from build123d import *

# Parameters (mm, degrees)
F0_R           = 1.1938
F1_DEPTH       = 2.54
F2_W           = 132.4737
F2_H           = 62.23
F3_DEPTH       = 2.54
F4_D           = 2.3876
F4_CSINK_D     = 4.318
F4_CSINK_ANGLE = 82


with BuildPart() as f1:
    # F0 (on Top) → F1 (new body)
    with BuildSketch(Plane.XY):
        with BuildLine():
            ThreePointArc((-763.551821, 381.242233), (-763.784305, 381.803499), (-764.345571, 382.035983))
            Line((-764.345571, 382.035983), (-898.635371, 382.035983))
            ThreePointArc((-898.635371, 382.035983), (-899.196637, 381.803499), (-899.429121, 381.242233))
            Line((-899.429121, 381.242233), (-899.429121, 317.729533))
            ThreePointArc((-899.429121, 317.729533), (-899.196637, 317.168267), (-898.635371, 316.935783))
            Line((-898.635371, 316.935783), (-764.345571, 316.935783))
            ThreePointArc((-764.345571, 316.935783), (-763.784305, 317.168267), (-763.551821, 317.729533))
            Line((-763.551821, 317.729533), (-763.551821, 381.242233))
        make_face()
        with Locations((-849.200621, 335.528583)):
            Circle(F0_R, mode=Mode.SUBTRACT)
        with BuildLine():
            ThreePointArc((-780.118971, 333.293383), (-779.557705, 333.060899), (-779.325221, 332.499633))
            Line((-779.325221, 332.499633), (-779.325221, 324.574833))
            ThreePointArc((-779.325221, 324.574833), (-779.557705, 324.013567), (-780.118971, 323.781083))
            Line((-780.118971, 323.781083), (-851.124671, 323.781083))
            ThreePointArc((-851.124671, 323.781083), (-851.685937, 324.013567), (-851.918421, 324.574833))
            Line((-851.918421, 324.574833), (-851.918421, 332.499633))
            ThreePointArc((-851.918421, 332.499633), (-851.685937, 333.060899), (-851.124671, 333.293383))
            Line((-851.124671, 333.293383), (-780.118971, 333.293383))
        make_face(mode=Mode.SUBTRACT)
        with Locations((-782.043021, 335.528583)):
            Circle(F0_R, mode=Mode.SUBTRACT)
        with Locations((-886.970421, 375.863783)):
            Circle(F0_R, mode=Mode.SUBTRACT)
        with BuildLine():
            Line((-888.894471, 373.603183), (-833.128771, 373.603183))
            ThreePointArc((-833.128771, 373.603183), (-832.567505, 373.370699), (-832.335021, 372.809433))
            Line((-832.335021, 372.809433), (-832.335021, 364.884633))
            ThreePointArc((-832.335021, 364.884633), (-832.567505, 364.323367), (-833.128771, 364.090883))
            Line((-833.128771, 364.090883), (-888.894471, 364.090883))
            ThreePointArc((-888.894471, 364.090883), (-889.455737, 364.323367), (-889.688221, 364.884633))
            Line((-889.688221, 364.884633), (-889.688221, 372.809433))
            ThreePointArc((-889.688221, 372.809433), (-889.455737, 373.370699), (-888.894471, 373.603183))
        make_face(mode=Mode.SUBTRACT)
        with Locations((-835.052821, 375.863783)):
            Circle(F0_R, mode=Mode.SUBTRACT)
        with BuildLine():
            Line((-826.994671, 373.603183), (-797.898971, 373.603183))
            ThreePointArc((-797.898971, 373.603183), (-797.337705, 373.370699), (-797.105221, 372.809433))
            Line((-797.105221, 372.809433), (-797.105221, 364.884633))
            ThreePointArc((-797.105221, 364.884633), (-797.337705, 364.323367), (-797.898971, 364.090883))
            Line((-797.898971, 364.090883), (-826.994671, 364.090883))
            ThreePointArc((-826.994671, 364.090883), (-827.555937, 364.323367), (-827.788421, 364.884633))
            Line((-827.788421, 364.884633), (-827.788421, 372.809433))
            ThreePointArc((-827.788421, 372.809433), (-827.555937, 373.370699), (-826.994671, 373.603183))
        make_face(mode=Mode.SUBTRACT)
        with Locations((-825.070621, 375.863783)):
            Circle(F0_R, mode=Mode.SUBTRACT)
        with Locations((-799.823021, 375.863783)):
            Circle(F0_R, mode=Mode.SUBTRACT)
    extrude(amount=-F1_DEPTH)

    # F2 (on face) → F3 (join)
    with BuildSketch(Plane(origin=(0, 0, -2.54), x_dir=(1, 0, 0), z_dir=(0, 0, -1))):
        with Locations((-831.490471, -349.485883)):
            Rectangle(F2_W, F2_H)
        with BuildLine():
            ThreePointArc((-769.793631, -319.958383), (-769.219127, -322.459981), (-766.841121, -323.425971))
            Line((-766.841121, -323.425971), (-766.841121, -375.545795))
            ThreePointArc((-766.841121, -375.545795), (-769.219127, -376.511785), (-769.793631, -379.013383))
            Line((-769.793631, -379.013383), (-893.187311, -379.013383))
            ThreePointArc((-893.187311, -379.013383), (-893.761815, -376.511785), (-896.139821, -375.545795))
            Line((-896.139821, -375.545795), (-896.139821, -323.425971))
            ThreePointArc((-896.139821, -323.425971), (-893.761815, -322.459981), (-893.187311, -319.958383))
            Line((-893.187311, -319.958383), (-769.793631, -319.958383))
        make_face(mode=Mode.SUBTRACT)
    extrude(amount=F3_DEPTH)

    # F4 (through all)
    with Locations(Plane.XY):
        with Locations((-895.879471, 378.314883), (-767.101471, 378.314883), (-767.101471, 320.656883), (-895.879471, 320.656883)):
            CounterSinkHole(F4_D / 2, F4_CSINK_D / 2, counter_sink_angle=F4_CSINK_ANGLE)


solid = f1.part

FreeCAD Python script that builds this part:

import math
import FreeCAD as App
import Part
import Sketcher
Q = App.Units.Quantity

doc = App.newDocument("Part")
params = doc.addObject("Spreadsheet::Sheet", "Params")
for row, (alias, value) in enumerate([
    ("sketch1_diameter", "0.094 in"),
    ("sketch1_radius", "0.03125 in"),
    ("sketch1_width", "5.287 in"),
    ("sketch1_height", "0.312 in"),
    ("pad1_length", "0.1 in"),
    ("sketch2_height", "2.45 in"),
    ("pad2_length", "0.1 in"),
    ("sketch3_diameter", "0.094 in"),
    ("hole_diameter", "0.094 in"),
    ("hole_csink_diameter", "0.17 in"),
], start=1):
    params.set(f"A{row}", alias)
    params.set(f"B{row}", "=" + value)
    params.setAlias(f"B{row}", alias)

body = doc.addObject("PartDesign::Body", "Body")

sketch1 = body.newObject("Sketcher::SketchObject", "Sketch")
sketch1.AttachmentSupport = (doc.getObject("XY_Plane"), [""])
sketch1.MapMode = "FlatFace"
sketch1.addGeometry([
    Part.ArcOfCircle(Part.Circle(App.Vector(-764.3, 381.2, 0), App.Vector(0, 0, 1), 0.8), math.radians(0), math.radians(90)),
    Part.LineSegment(App.Vector(-764.3, 382, 0), App.Vector(-898.6, 382, 0)),
    Part.ArcOfCircle(Part.Circle(App.Vector(-898.6, 381.2, 0), App.Vector(0, 0, 1), 0.8), math.radians(90), math.radians(180)),
    Part.LineSegment(App.Vector(-899.4, 381.2, 0), App.Vector(-899.4, 317.7, 0)),
    Part.ArcOfCircle(Part.Circle(App.Vector(-898.6, 317.7, 0), App.Vector(0, 0, 1), 0.8), math.radians(-180), math.radians(-90)),
    Part.LineSegment(App.Vector(-898.6, 316.9, 0), App.Vector(-764.3, 316.9, 0)),
    Part.ArcOfCircle(Part.Circle(App.Vector(-764.3, 317.7, 0), App.Vector(0, 0, 1), 0.8), math.radians(-90), math.radians(0)),
    Part.LineSegment(App.Vector(-763.6, 317.7, 0), App.Vector(-763.6, 381.2, 0)),
    Part.Circle(App.Vector(-849.2, 335.5, 0), App.Vector(0, 0, 1), 1.2),
    Part.LineSegment(App.Vector(-851.1, 333.3, 0), App.Vector(-780.1, 333.3, 0)),
    Part.ArcOfCircle(Part.Circle(App.Vector(-780.1, 332.5, 0), App.Vector(0, 0, 1), 0.8), math.radians(0), math.radians(90)),
    Part.LineSegment(App.Vector(-779.3, 332.5, 0), App.Vector(-779.3, 324.6, 0)),
    Part.ArcOfCircle(Part.Circle(App.Vector(-780.1, 324.6, 0), App.Vector(0, 0, 1), 0.8), math.radians(-90), math.radians(0)),
    Part.LineSegment(App.Vector(-780.1, 323.8, 0), App.Vector(-851.1, 323.8, 0)),
    Part.ArcOfCircle(Part.Circle(App.Vector(-851.1, 324.6, 0), App.Vector(0, 0, 1), 0.8), math.radians(-180), math.radians(-90)),
    Part.LineSegment(App.Vector(-851.9, 324.6, 0), App.Vector(-851.9, 332.5, 0)),
    Part.ArcOfCircle(Part.Circle(App.Vector(-851.1, 332.5, 0), App.Vector(0, 0, 1), 0.8), math.radians(90), math.radians(180)),
    Part.Circle(App.Vector(-782, 335.5, 0), App.Vector(0, 0, 1), 1.2),
    Part.Circle(App.Vector(-887, 375.9, 0), App.Vector(0, 0, 1), 1.2),
    Part.ArcOfCircle(Part.Circle(App.Vector(-888.9, 372.8, 0), App.Vector(0, 0, 1), 0.8), math.radians(90), math.radians(180)),
    Part.LineSegment(App.Vector(-888.9, 373.6, 0), App.Vector(-833.1, 373.6, 0)),
    Part.ArcOfCircle(Part.Circle(App.Vector(-833.1, 372.8, 0), App.Vector(0, 0, 1), 0.8), math.radians(0), math.radians(90)),
    Part.LineSegment(App.Vector(-832.3, 372.8, 0), App.Vector(-832.3, 364.9, 0)),
    Part.ArcOfCircle(Part.Circle(App.Vector(-833.1, 364.9, 0), App.Vector(0, 0, 1), 0.8), math.radians(-90), math.radians(0)),
    Part.LineSegment(App.Vector(-833.1, 364.1, 0), App.Vector(-888.9, 364.1, 0)),
    Part.ArcOfCircle(Part.Circle(App.Vector(-888.9, 364.9, 0), App.Vector(0, 0, 1), 0.8), math.radians(-180), math.radians(-90)),
    Part.LineSegment(App.Vector(-889.7, 364.9, 0), App.Vector(-889.7, 372.8, 0)),
    Part.Circle(App.Vector(-835.1, 375.9, 0), App.Vector(0, 0, 1), 1.2),
    Part.ArcOfCircle(Part.Circle(App.Vector(-827, 372.8, 0), App.Vector(0, 0, 1), 0.8), math.radians(90), math.radians(180)),
    Part.LineSegment(App.Vector(-827, 373.6, 0), App.Vector(-797.9, 373.6, 0)),
    Part.ArcOfCircle(Part.Circle(App.Vector(-797.9, 372.8, 0), App.Vector(0, 0, 1), 0.8), math.radians(0), math.radians(90)),
    Part.LineSegment(App.Vector(-797.1, 372.8, 0), App.Vector(-797.1, 364.9, 0)),
    Part.ArcOfCircle(Part.Circle(App.Vector(-797.9, 364.9, 0), App.Vector(0, 0, 1), 0.8), math.radians(-90), math.radians(0)),
    Part.LineSegment(App.Vector(-797.9, 364.1, 0), App.Vector(-827, 364.1, 0)),
    Part.ArcOfCircle(Part.Circle(App.Vector(-827, 364.9, 0), App.Vector(0, 0, 1), 0.8), math.radians(-180), math.radians(-90)),
    Part.LineSegment(App.Vector(-827.8, 364.9, 0), App.Vector(-827.8, 372.8, 0)),
    Part.Circle(App.Vector(-825.1, 375.9, 0), App.Vector(0, 0, 1), 1.2),
    Part.Circle(App.Vector(-799.8, 375.9, 0), App.Vector(0, 0, 1), 1.2),
], False)
sketch1.addConstraint([
    Sketcher.Constraint("Tangent", 0, 2, 1, 1),
    Sketcher.Constraint("Tangent", 1, 2, 2, 1),
    Sketcher.Constraint("Tangent", 2, 2, 3, 1),
    Sketcher.Constraint("Tangent", 3, 2, 4, 1),
    Sketcher.Constraint("Tangent", 4, 2, 5, 1),
    Sketcher.Constraint("Tangent", 5, 2, 6, 1),
    Sketcher.Constraint("Tangent", 6, 2, 7, 1),
    Sketcher.Constraint("Tangent", 7, 2, 0, 1),
    Sketcher.Constraint("Tangent", 9, 2, 10, 2),
    Sketcher.Constraint("Tangent", 10, 1, 11, 1),
    Sketcher.Constraint("Tangent", 11, 2, 12, 2),
    Sketcher.Constraint("Tangent", 12, 1, 13, 1),
    Sketcher.Constraint("Tangent", 13, 2, 14, 2),
    Sketcher.Constraint("Tangent", 14, 1, 15, 1),
    Sketcher.Constraint("Tangent", 15, 2, 16, 2),
    Sketcher.Constraint("Tangent", 16, 1, 9, 1),
    Sketcher.Constraint("Tangent", 19, 1, 20, 1),
    Sketcher.Constraint("Tangent", 20, 2, 21, 2),
    Sketcher.Constraint("Tangent", 21, 1, 22, 1),
    Sketcher.Constraint("Tangent", 22, 2, 23, 2),
    Sketcher.Constraint("Tangent", 23, 1, 24, 1),
    Sketcher.Constraint("Tangent", 24, 2, 25, 2),
    Sketcher.Constraint("Tangent", 25, 1, 26, 1),
    Sketcher.Constraint("Tangent", 26, 2, 19, 2),
    Sketcher.Constraint("Tangent", 28, 1, 29, 1),
    Sketcher.Constraint("Tangent", 29, 2, 30, 2),
    Sketcher.Constraint("Tangent", 30, 1, 31, 1),
    Sketcher.Constraint("Tangent", 31, 2, 32, 2),
    Sketcher.Constraint("Tangent", 32, 1, 33, 1),
    Sketcher.Constraint("Tangent", 33, 2, 34, 2),
    Sketcher.Constraint("Tangent", 34, 1, 35, 1),
    Sketcher.Constraint("Tangent", 35, 2, 28, 2),
    Sketcher.Constraint("Horizontal", 1),
    Sketcher.Constraint("Vertical", 3),
    Sketcher.Constraint("Horizontal", 5),
    Sketcher.Constraint("Vertical", 7),
    Sketcher.Constraint("Horizontal", 9),
    Sketcher.Constraint("Vertical", 11),
    Sketcher.Constraint("Horizontal", 13),
    Sketcher.Constraint("Vertical", 15),
    Sketcher.Constraint("Horizontal", 20),
    Sketcher.Constraint("Vertical", 22),
    Sketcher.Constraint("Horizontal", 24),
    Sketcher.Constraint("Vertical", 26),
    Sketcher.Constraint("Horizontal", 29),
    Sketcher.Constraint("Vertical", 31),
    Sketcher.Constraint("Horizontal", 33),
    Sketcher.Constraint("Vertical", 35),
    Sketcher.Constraint("Equal", 0, 2),
    Sketcher.Constraint("Equal", 2, 4),
    Sketcher.Constraint("Equal", 4, 6),
    Sketcher.Constraint("Equal", 6, 10),
    Sketcher.Constraint("Equal", 10, 12),
    Sketcher.Constraint("Equal", 12, 14),
    Sketcher.Constraint("Equal", 14, 16),
    Sketcher.Constraint("Equal", 8, 17),
    Sketcher.Constraint("Equal", 17, 18),
    Sketcher.Constraint("Equal", 16, 19),
    Sketcher.Constraint("Equal", 19, 21),
    Sketcher.Constraint("Equal", 21, 23),
    Sketcher.Constraint("Equal", 23, 25),
    Sketcher.Constraint("Equal", 18, 27),
    Sketcher.Constraint("Equal", 25, 28),
    Sketcher.Constraint("Equal", 28, 30),
    Sketcher.Constraint("Equal", 30, 32),
    Sketcher.Constraint("Equal", 32, 34),
    Sketcher.Constraint("Equal", 27, 36),
    Sketcher.Constraint("Equal", 36, 37),
    Sketcher.Constraint("Horizontal", 8, 3, 17, 3),
    Sketcher.Constraint("Horizontal", 18, 3, 27, 3),
    Sketcher.Constraint("Horizontal", 21, 3, 28, 3),
    Sketcher.Constraint("Horizontal", 25, 3, 32, 3),
    Sketcher.Constraint("Horizontal", 27, 3, 36, 3),
    Sketcher.Constraint("Horizontal", 36, 3, 37, 3),
    Sketcher.Constraint("Equal", 15, 22),
    Sketcher.Constraint("Diameter", 8, Q("0.094 in")),
    Sketcher.Constraint("Radius", 0, Q("0.03125 in")),
    Sketcher.Constraint("DistanceX", 1, 2, 1, 1, Q("5.287 in")),
    Sketcher.Constraint("DistanceY", 11, 2, 11, 1, Q("0.312 in")),
    Sketcher.Constraint("DistanceX", 16, 3, 28, 3, Q("0.95 in")),
    Sketcher.Constraint("DistanceX", 9, 1, 9, 2, Q("2.7955 in")),
    Sketcher.Constraint("DistanceX", 20, 1, 20, 2, Q("2.1955 in")),
    Sketcher.Constraint("DistanceX", 29, 1, 29, 2, Q("1.1455 in")),
    Sketcher.Constraint("DistanceY", 3, 2, 3, 1, Q("2.5005 in")),
    Sketcher.Constraint("DistanceX", 10, 3, 6, 3, Q("0.621 in")),
    Sketcher.Constraint("DistanceY", 10, 3, 0, 3, Q("1.919 in")),
    Sketcher.Constraint("DistanceX", 8, 3, 17, 3, Q("2.644 in")),
    Sketcher.Constraint("DistanceX", 18, 3, 8, 3, Q("1.487 in")),
    Sketcher.Constraint("DistanceY", 8, 3, 18, 3, Q("1.588 in")),
    Sketcher.Constraint("DistanceY", 19, 3, 2, 3, Q("0.332 in")),
    Sketcher.Constraint("DistanceX", 19, 3, 16, 3, Q("1.487 in")),
    Sketcher.Constraint("DistanceX", 8, 3, 27, 3, Q("0.557 in")),
    Sketcher.Constraint("DistanceX", 27, 3, 36, 3, Q("0.393 in")),
    Sketcher.Constraint("DistanceX", 36, 3, 37, 3, Q("0.994 in")),
    Sketcher.Constraint("DistanceY", 37, 3, 0, 2, Q("0.243 in")),
    Sketcher.Constraint("DistanceX", 17, 3, 6, 2, Q("0.728 in")),
    Sketcher.Constraint("DistanceX", 0, 3, -1, 1, Q("764.345571 mm")),
    Sketcher.Constraint("DistanceY", -1, 1, 0, 3, Q("381.242233 mm")),
])
sketch1.setExpression("Constraints[75]", "Params.sketch1_diameter")
sketch1.setExpression("Constraints[76]", "Params.sketch1_radius")
sketch1.setExpression("Constraints[77]", "Params.sketch1_width")
sketch1.setExpression("Constraints[78]", "Params.sketch1_height")
pad1 = body.newObject("PartDesign::Pad", "Pad")
pad1.Profile = sketch1
pad1.setExpression("Length", "Params.pad1_length")
pad1.Reversed = True

sketch2 = body.newObject("Sketcher::SketchObject", "Sketch001")
sketch2.AttachmentSupport = (doc.getObject("XY_Plane"), [""])
sketch2.MapMode = "FlatFace"
sketch2.AttachmentOffset = App.Placement(App.Vector(0, 0, -0.1 * 25.4), App.Rotation())
sketch2.addGeometry([
    Part.LineSegment(App.Vector(-897.7, 318.4, 0), App.Vector(-897.7, 380.6, 0)),
    Part.LineSegment(App.Vector(-897.7, 380.6, 0), App.Vector(-765.3, 380.6, 0)),
    Part.LineSegment(App.Vector(-765.3, 380.6, 0), App.Vector(-765.3, 318.4, 0)),
    Part.LineSegment(App.Vector(-765.3, 318.4, 0), App.Vector(-897.7, 318.4, 0)),
    Part.LineSegment(App.Vector(-893.2, 320, 0), App.Vector(-769.8, 320, 0)),
    Part.ArcOfCircle(Part.Circle(App.Vector(-767.1, 320.7, 0), App.Vector(0, 0, 1), 2.8), math.radians(85), math.radians(195)),
    Part.LineSegment(App.Vector(-766.8, 323.4, 0), App.Vector(-766.8, 375.5, 0)),
    Part.ArcOfCircle(Part.Circle(App.Vector(-767.1, 378.3, 0), App.Vector(0, 0, 1), 2.8), math.radians(165), math.radians(275)),
    Part.LineSegment(App.Vector(-769.8, 379, 0), App.Vector(-893.2, 379, 0)),
    Part.ArcOfCircle(Part.Circle(App.Vector(-895.9, 378.3, 0), App.Vector(0, 0, 1), 2.8), math.radians(-95), math.radians(15)),
    Part.LineSegment(App.Vector(-896.1, 375.5, 0), App.Vector(-896.1, 323.4, 0)),
    Part.ArcOfCircle(Part.Circle(App.Vector(-895.9, 320.7, 0), App.Vector(0, 0, 1), 2.8), math.radians(-15), math.radians(95)),
], False)
sketch2.addConstraint([
    Sketcher.Constraint("Coincident", 0, 2, 1, 1),
    Sketcher.Constraint("Coincident", 1, 2, 2, 1),
    Sketcher.Constraint("Coincident", 2, 2, 3, 1),
    Sketcher.Constraint("Coincident", 3, 2, 0, 1),
    Sketcher.Constraint("Coincident", 4, 2, 5, 2),
    Sketcher.Constraint("Coincident", 5, 1, 6, 1),
    Sketcher.Constraint("Coincident", 6, 2, 7, 2),
    Sketcher.Constraint("Coincident", 7, 1, 8, 1),
    Sketcher.Constraint("Coincident", 8, 2, 9, 2),
    Sketcher.Constraint("Coincident", 9, 1, 10, 1),
    Sketcher.Constraint("Coincident", 10, 2, 11, 2),
    Sketcher.Constraint("Coincident", 11, 1, 4, 1),
    Sketcher.Constraint("Vertical", 0),
    Sketcher.Constraint("Horizontal", 1),
    Sketcher.Constraint("Vertical", 2),
    Sketcher.Constraint("Horizontal", 3),
    Sketcher.Constraint("Horizontal", 4),
    Sketcher.Constraint("Vertical", 6),
    Sketcher.Constraint("Horizontal", 8),
    Sketcher.Constraint("Vertical", 10),
    Sketcher.Constraint("Equal", 5, 7),
    Sketcher.Constraint("Equal", 7, 9),
    Sketcher.Constraint("Equal", 9, 11),
    Sketcher.Constraint("Horizontal", 7, 3, 9, 3),
    Sketcher.Constraint("Horizontal", 5, 3, 11, 3),
    Sketcher.Constraint("Horizontal", 6, 2, 9, 1),
    Sketcher.Constraint("Horizontal", 5, 1, 10, 2),
    Sketcher.Constraint("Vertical", 5, 3, 7, 3),
    Sketcher.Constraint("Vertical", 4, 2, 7, 1),
    Sketcher.Constraint("DistanceY", 0, 1, 0, 2, Q("2.45 in")),
    Sketcher.Constraint("Radius", 5, Q("0.1095 in")),
    Sketcher.Constraint("DistanceY", 5, 3, 7, 3, Q("2.27 in")),
    Sketcher.Constraint("DistanceX", 9, 3, 7, 3, Q("5.07 in")),
    Sketcher.Constraint("DistanceY", 9, 3, 0, 2, Q("0.09 in")),
    Sketcher.Constraint("DistanceX", 1, 1, 1, 2, Q("5.2155 in")),
    Sketcher.Constraint("DistanceY", 2, 2, 4, 2, Q("0.0625 in")),
    Sketcher.Constraint("DistanceX", 5, 1, 2, 2, Q("0.0625 in")),
    Sketcher.Constraint("DistanceX", 0, 2, 9, 1, Q("0.0625 in")),
    Sketcher.Constraint("DistanceX", 5, 3, -1, 1, Q("767.101471 mm")),
    Sketcher.Constraint("DistanceY", -1, 1, 5, 1, Q("323.425971 mm")),
])
sketch2.setExpression("Constraints[29]", "Params.sketch2_height")
pad2 = body.newObject("PartDesign::Pad", "Pad001")
pad2.Profile = sketch2
pad2.setExpression("Length", "Params.pad2_length")
pad2.Reversed = True

sketch3 = body.newObject("Sketcher::SketchObject", "Sketch002")
sketch3.AttachmentSupport = (doc.getObject("XY_Plane"), [""])
sketch3.MapMode = "FlatFace"
sketch3.addGeometry([
    Part.Circle(App.Vector(-895.9, 378.3, 0), App.Vector(0, 0, 1), 1.2),
    Part.Circle(App.Vector(-767.1, 378.3, 0), App.Vector(0, 0, 1), 1.2),
    Part.Circle(App.Vector(-767.1, 320.7, 0), App.Vector(0, 0, 1), 1.2),
    Part.Circle(App.Vector(-895.9, 320.7, 0), App.Vector(0, 0, 1), 1.2),
], False)
sketch3.addConstraint([
    Sketcher.Constraint("Equal", 0, 1),
    Sketcher.Constraint("Equal", 1, 2),
    Sketcher.Constraint("Equal", 2, 3),
    Sketcher.Constraint("Horizontal", 0, 3, 1, 3),
    Sketcher.Constraint("Horizontal", 2, 3, 3, 3),
    Sketcher.Constraint("Vertical", 1, 3, 2, 3),
    Sketcher.Constraint("Vertical", 0, 3, 3, 3),
    Sketcher.Constraint("Diameter", 0, Q("0.094 in")),
    Sketcher.Constraint("DistanceX", 0, 3, 1, 3, Q("5.07 in")),
    Sketcher.Constraint("DistanceY", 2, 3, 1, 3, Q("2.27 in")),
    Sketcher.Constraint("DistanceX", 0, 3, -1, 1, Q("895.879471 mm")),
    Sketcher.Constraint("DistanceY", -1, 1, 0, 3, Q("378.314883 mm")),
])
sketch3.setExpression("Constraints[7]", "Params.sketch3_diameter")
doc.recompute()
hole = body.newObject("PartDesign::Hole", "Hole")
hole.Profile = sketch3
hole.ThreadType = "None"
hole.setExpression("Diameter", "Params.hole_diameter")
hole.DepthType = "ThroughAll"
hole.HoleCutType = "Countersink"
hole.setExpression("HoleCutDiameter", "Params.hole_csink_diameter")
hole.HoleCutCountersinkAngle = 82

doc.recompute()
